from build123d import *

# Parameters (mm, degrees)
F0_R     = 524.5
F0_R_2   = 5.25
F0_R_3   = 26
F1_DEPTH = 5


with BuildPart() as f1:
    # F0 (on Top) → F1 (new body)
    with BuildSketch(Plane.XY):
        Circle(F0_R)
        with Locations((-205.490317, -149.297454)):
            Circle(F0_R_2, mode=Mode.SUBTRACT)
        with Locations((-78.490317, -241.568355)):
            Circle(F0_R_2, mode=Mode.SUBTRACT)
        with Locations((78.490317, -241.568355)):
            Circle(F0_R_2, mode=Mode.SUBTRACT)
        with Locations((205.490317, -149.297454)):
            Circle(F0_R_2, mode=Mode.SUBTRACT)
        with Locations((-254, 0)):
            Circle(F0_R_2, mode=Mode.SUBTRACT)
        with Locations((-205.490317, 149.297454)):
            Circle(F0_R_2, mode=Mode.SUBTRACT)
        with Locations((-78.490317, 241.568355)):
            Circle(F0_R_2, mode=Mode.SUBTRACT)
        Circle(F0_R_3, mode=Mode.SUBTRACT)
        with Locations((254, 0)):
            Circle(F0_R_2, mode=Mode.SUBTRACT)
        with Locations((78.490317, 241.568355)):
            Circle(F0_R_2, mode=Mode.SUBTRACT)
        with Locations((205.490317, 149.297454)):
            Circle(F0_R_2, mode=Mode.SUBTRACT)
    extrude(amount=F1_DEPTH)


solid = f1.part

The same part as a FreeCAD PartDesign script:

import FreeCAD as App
import Part
import Sketcher

doc = App.newDocument("Part")
body = doc.addObject("PartDesign::Body", "Body")

sketch1 = body.newObject("Sketcher::SketchObject", "Sketch")
sketch1.AttachmentSupport = (doc.getObject("XY_Plane"), [""])
sketch1.MapMode = "FlatFace"
sketch1.addGeometry(Part.Circle(App.Vector(0, 0, 0), App.Vector(0, 0, 1), 524.5), False)
sketch1.addGeometry(Part.Circle(App.Vector(-205.490317, -149.297454, 0), App.Vector(0, 0, 1), 5.25), False)
sketch1.addGeometry(Part.Circle(App.Vector(-78.490317, -241.568355, 0), App.Vector(0, 0, 1), 5.25), False)
sketch1.addGeometry(Part.Circle(App.Vector(78.490317, -241.568355, 0), App.Vector(0, 0, 1), 5.25), False)
sketch1.addGeometry(Part.Circle(App.Vector(205.490317, -149.297454, 0), App.Vector(0, 0, 1), 5.25), False)
sketch1.addGeometry(Part.Circle(App.Vector(-254, 0, 0), App.Vector(0, 0, 1), 5.25), False)
sketch1.addGeometry(Part.Circle(App.Vector(-205.490317, 149.297454, 0), App.Vector(0, 0, 1), 5.25), False)
sketch1.addGeometry(Part.Circle(App.Vector(-78.490317, 241.568355, 0), App.Vector(0, 0, 1), 5.25), False)
sketch1.addGeometry(Part.Circle(App.Vector(0, 0, 0), App.Vector(0, 0, 1), 26), False)
sketch1.addGeometry(Part.Circle(App.Vector(254, 0, 0), App.Vector(0, 0, 1), 5.25), False)
sketch1.addGeometry(Part.Circle(App.Vector(78.490317, 241.568355, 0), App.Vector(0, 0, 1), 5.25), False)
sketch1.addGeometry(Part.Circle(App.Vector(205.490317, 149.297454, 0), App.Vector(0, 0, 1), 5.25), False)
sketch1.addConstraint(Sketcher.Constraint("Coincident", 0, 3, -1, 1))
sketch1.addConstraint(Sketcher.Constraint("Coincident", 8, 3, -1, 1))
sketch1.addConstraint(Sketcher.Constraint("Equal", 1, 2))
sketch1.addConstraint(Sketcher.Constraint("Equal", 2, 3))
sketch1.addConstraint(Sketcher.Constraint("Equal", 3, 4))
sketch1.addConstraint(Sketcher.Constraint("Equal", 4, 5))
sketch1.addConstraint(Sketcher.Constraint("Equal", 5, 6))
sketch1.addConstraint(Sketcher.Constraint("Equal", 6, 7))
sketch1.addConstraint(Sketcher.Constraint("Equal", 7, 9))
sketch1.addConstraint(Sketcher.Constraint("Equal", 9, 10))
sketch1.addConstraint(Sketcher.Constraint("Equal", 10, 11))
sketch1.addConstraint(Sketcher.Constraint("Symmetric", 4, 3, 6, 3, -1, 1))
sketch1.addConstraint(Sketcher.Constraint("Symmetric", 3, 3, 7, 3, -1, 1))
sketch1.addConstraint(Sketcher.Constraint("Symmetric", 5, 3, 9, 3, -1, 1))
sketch1.addConstraint(Sketcher.Constraint("Symmetric", 2, 3, 10, 3, -1, 1))
sketch1.addConstraint(Sketcher.Constraint("Symmetric", 1, 3, 11, 3, -1, 1))
sketch1.addConstraint(Sketcher.Constraint("Symmetric", 2, 3, 3, 3, -2))
sketch1.addConstraint(Sketcher.Constraint("Symmetric", 1, 3, 4, 3, -2))
sketch1.addConstraint(Sketcher.Constraint("PointOnObject", 5, 3, -1))
sketch1.addConstraint(Sketcher.Constraint("Diameter", 0, 1049.0))
sketch1.addConstraint(Sketcher.Constraint("Diameter", 8, 52.0))
sketch1.addConstraint(Sketcher.Constraint("Diameter", 1, 10.5))
sketch1.addConstraint(Sketcher.Constraint("DistanceX", 5, 3, -1, 1, 254.0))
sketch1.addConstraint(Sketcher.Constraint("DistanceX", 1, 3, 2, 3, 127.0))
sketch1.addConstraint(Sketcher.Constraint("DistanceY", 2, 3, 1, 3, 92.270901))
sketch1.addConstraint(Sketcher.Constraint("DistanceY", 2, 3, 6, 3, 390.865809))
sketch1.addConstraint(Sketcher.Constraint("DistanceX", 1, 3, -1, 1, 205.490317))
pad1 = body.newObject("PartDesign::Pad", "Pad")
pad1.Profile = sketch1
pad1.Length = 5

doc.recompute()
